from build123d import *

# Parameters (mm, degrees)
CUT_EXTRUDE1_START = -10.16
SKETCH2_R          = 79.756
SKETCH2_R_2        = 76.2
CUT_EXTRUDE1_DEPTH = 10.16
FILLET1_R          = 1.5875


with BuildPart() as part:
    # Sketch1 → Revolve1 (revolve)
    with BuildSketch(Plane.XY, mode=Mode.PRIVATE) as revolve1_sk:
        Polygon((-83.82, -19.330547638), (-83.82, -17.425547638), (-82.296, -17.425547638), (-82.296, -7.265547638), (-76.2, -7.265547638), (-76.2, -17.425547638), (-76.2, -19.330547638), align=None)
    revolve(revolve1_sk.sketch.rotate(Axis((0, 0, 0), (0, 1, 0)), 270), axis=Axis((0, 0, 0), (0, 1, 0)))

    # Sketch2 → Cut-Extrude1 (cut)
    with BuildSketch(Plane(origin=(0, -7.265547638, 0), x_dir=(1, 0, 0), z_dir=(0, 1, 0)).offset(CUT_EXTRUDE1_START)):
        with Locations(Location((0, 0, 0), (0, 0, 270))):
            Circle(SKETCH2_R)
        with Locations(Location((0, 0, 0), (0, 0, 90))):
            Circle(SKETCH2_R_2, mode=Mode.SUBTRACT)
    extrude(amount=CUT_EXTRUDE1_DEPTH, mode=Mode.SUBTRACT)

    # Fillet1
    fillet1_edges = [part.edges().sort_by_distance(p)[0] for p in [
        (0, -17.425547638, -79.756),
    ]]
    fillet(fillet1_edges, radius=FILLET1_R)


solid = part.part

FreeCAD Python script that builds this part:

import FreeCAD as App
import Part
import Sketcher
Q = App.Units.Quantity


def edges_at(feature, points):
    """Names of the edges that pass closest to the given points."""
    edges = feature.Shape.Edges
    near = lambda p: min(range(len(edges)), key=lambda i: edges[i].distToShape(Part.Vertex(*p))[0])
    return sorted({f"Edge{near(p) + 1}" for p in points})


def add_polygon(sketch, points):
    """Adds a closed chain of lines whose ends are joined by coincident constraints."""
    first, n = sketch.GeometryCount, len(points)
    for a, b in zip(points, points[1:] + points[:1]):
        sketch.addGeometry(Part.LineSegment(App.Vector(*a, 0), App.Vector(*b, 0)), False)
    for i in range(n):
        sketch.addConstraint(Sketcher.Constraint("Coincident", first + i, 2, first + (i + 1) % n, 1))

doc = App.newDocument("Part")
body = doc.addObject("PartDesign::Body", "Body")

# Sketch on XY plane
sketch1 = body.newObject("Sketcher::SketchObject", "Sketch")
sketch1.AttachmentSupport = (doc.getObject("XY_Plane"), [""])
sketch1.MapMode = "FlatFace"
add_polygon(sketch1, [(-83.82, -17.425548), (-83.82, -19.330548), (-76.2, -19.330548), (-76.2, -7.265548), (-82.296, -7.265548), (-82.296, -17.425548)])  # lines 0-5
sketch1.addConstraint(Sketcher.Constraint("Vertical", 0))
sketch1.addConstraint(Sketcher.Constraint("Horizontal", 1))
sketch1.addConstraint(Sketcher.Constraint("Vertical", 2))
sketch1.addConstraint(Sketcher.Constraint("Horizontal", 3))
sketch1.addConstraint(Sketcher.Constraint("Vertical", 4))
sketch1.addConstraint(Sketcher.Constraint("Horizontal", 5))
sketch1.addConstraint(Sketcher.Constraint("DistanceX", 1, 1, 1, 2, Q("0.3 in")))
sketch1.addConstraint(Sketcher.Constraint("DistanceY", 4, 2, 4, 1, Q("0.4 in")))
sketch1.addConstraint(Sketcher.Constraint("DistanceX", 1, 2, -1, 1, Q("3 in")))
sketch1.addConstraint(Sketcher.Constraint("DistanceX", 3, 2, 3, 1, Q("0.24 in")))
sketch1.addConstraint(Sketcher.Constraint("DistanceY", 0, 2, 0, 1, Q("0.075 in")))
sketch1.addConstraint(Sketcher.Constraint("DistanceY", 0, 2, -1, 1, 19.330548))
revolution = body.newObject("PartDesign::Revolution", "Revolution")
revolution.Profile = sketch1
revolution.ReferenceAxis = (sketch1, ["V_Axis"])
revolution.Angle = 360

# Sketch on XZ plane
sketch2 = body.newObject("Sketcher::SketchObject", "Sketch001")
sketch2.AttachmentSupport = (doc.getObject("XZ_Plane"), [""])
sketch2.MapMode = "FlatFace"
sketch2.AttachmentOffset = App.Placement(App.Vector(0, 0, 17.425548), App.Rotation())
sketch2.addGeometry(Part.Circle(App.Vector(0, 0, 0), App.Vector(0, 0, 1), 79.756), False)
sketch2.addGeometry(Part.Circle(App.Vector(0, 0, 0), App.Vector(0, 0, 1), 76.2), False)
sketch2.addConstraint(Sketcher.Constraint("Coincident", 0, 3, -1, 1))
sketch2.addConstraint(Sketcher.Constraint("Coincident", 1, 3, -1, 1))
sketch2.addConstraint(Sketcher.Constraint("Diameter", 1, Q("6 in")))
sketch2.addConstraint(Sketcher.Constraint("Diameter", 0, Q("6.28 in")))
pocket1 = body.newObject("PartDesign::Pocket", "Pocket")
pocket1.Profile = sketch2
pocket1.Length = Q("0.4 in")
doc.recompute()

fillet = body.newObject("PartDesign::Fillet", "Fillet")
fillet.Base = (pocket1, edges_at(pocket1, [(0, -17.426, -79.756)]))
fillet.Radius = Q("0.0625 in")

doc.recompute()
